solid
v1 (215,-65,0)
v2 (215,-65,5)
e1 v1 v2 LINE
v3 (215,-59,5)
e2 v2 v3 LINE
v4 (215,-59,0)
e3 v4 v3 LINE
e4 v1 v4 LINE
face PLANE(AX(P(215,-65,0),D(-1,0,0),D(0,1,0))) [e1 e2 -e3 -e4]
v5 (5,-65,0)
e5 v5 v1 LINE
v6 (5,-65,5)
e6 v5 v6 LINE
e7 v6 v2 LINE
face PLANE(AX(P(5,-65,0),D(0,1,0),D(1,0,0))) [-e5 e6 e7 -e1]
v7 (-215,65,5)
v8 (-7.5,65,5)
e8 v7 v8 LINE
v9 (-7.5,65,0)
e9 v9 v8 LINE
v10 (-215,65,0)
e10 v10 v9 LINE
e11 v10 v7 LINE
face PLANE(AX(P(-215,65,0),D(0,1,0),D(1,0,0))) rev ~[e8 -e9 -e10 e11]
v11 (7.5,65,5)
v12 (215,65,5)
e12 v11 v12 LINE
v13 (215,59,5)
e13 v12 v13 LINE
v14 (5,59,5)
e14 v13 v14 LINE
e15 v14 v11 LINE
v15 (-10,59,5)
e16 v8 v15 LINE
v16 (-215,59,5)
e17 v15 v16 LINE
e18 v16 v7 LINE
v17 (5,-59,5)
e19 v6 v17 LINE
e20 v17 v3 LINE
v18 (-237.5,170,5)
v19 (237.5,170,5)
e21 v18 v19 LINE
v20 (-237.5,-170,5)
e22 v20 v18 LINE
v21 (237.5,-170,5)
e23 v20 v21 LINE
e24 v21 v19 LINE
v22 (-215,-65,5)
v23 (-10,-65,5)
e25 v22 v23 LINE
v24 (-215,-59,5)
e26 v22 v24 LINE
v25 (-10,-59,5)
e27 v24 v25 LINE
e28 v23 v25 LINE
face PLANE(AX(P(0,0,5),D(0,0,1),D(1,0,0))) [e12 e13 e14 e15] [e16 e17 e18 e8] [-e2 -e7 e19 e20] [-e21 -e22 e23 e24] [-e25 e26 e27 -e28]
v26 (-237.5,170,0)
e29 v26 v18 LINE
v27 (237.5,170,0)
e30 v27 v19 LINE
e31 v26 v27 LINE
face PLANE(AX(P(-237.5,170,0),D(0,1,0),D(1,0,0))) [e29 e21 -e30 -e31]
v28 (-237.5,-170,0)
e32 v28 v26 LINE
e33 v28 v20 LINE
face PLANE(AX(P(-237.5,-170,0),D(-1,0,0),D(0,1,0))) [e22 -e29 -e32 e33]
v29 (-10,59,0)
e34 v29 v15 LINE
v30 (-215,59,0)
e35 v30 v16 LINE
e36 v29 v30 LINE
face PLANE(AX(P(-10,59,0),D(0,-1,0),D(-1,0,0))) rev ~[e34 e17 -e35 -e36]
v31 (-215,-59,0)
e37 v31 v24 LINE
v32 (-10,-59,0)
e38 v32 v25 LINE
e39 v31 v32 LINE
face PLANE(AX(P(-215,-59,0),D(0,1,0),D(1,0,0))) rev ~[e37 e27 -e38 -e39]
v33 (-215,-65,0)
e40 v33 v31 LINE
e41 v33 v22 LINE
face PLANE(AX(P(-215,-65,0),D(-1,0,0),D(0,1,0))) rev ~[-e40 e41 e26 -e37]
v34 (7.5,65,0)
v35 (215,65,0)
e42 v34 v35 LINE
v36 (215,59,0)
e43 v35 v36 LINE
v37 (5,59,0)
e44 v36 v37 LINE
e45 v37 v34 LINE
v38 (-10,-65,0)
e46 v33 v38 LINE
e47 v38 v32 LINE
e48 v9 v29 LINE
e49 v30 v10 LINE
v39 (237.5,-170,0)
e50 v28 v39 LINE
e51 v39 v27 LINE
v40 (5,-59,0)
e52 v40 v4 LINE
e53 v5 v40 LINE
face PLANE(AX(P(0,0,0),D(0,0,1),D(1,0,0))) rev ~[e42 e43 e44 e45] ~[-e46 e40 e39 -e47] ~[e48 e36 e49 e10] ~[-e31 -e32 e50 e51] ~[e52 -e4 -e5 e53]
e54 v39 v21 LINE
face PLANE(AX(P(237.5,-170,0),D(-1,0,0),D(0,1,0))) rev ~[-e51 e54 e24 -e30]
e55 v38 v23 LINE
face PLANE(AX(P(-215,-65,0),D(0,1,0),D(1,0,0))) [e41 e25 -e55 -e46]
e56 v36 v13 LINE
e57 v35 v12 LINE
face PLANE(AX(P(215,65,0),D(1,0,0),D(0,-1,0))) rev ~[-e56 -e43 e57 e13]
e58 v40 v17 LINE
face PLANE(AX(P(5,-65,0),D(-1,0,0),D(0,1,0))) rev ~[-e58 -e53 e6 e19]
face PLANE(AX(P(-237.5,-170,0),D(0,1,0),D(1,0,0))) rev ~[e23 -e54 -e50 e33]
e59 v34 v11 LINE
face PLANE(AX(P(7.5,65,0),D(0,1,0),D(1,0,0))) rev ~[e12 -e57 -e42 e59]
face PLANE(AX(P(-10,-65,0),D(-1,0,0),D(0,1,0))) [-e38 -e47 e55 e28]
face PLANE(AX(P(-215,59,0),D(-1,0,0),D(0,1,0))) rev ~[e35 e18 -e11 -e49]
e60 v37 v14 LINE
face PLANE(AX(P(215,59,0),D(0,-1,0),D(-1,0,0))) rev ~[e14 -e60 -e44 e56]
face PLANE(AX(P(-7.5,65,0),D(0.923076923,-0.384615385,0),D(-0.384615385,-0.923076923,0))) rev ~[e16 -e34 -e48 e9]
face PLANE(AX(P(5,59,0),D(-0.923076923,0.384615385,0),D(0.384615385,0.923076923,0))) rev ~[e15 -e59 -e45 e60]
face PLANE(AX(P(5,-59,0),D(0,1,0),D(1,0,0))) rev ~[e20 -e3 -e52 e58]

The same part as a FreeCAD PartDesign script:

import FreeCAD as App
import Part
import Sketcher
from FreeCAD import Vector
Q = App.Units.Quantity

doc = App.newDocument("Part")
body = doc.addObject("PartDesign::Body", "Body")

sketch1 = body.newObject("Sketcher::SketchObject", "Sketch")
sketch1.AttachmentSupport = (doc.getObject("XY_Plane"), [""])
sketch1.MapMode = "FlatFace"
sketch1.addGeometry(Part.LineSegment(Vector(-238, 170, 0), Vector(-238, -170, 0)), False)
sketch1.addGeometry(Part.LineSegment(Vector(-238, -170, 0), Vector(238, -170, 0)), False)
sketch1.addGeometry(Part.LineSegment(Vector(238, -170, 0), Vector(238, 170, 0)), False)
sketch1.addGeometry(Part.LineSegment(Vector(238, 170, 0), Vector(-238, 170, 0)), False)
sketch1.addGeometry(Part.LineSegment(Vector(-10, -65, 0), Vector(-215, -65, 0)), False)
sketch1.addGeometry(Part.LineSegment(Vector(-215, -65, 0), Vector(-215, -59, 0)), False)
sketch1.addGeometry(Part.LineSegment(Vector(-215, -59, 0), Vector(-10, -59, 0)), False)
sketch1.addGeometry(Part.LineSegment(Vector(-10, -59, 0), Vector(-10, -65, 0)), False)
sketch1.addGeometry(Part.LineSegment(Vector(215, -65, 0), Vector(5, -65, 0)), False)
sketch1.addGeometry(Part.LineSegment(Vector(5, -65, 0), Vector(5, -59, 0)), False)
sketch1.addGeometry(Part.LineSegment(Vector(5, -59, 0), Vector(215, -59, 0)), False)
sketch1.addGeometry(Part.LineSegment(Vector(215, -59, 0), Vector(215, -65, 0)), False)
sketch1.addGeometry(Part.LineSegment(Vector(-8, 65, 0), Vector(-10, 59, 0)), False)
sketch1.addGeometry(Part.LineSegment(Vector(-10, 59, 0), Vector(-215, 59, 0)), False)
sketch1.addGeometry(Part.LineSegment(Vector(-215, 59, 0), Vector(-215, 65, 0)), False)
sketch1.addGeometry(Part.LineSegment(Vector(-215, 65, 0), Vector(-8, 65, 0)), False)
sketch1.addGeometry(Part.LineSegment(Vector(8, 65, 0), Vector(215, 65, 0)), False)
sketch1.addGeometry(Part.LineSegment(Vector(215, 65, 0), Vector(215, 59, 0)), False)
sketch1.addGeometry(Part.LineSegment(Vector(215, 59, 0), Vector(5, 59, 0)), False)
sketch1.addGeometry(Part.LineSegment(Vector(5, 59, 0), Vector(8, 65, 0)), False)
sketch1.addConstraint(Sketcher.Constraint("Coincident", 0, 2, 1, 1))
sketch1.addConstraint(Sketcher.Constraint("Coincident", 1, 2, 2, 1))
sketch1.addConstraint(Sketcher.Constraint("Coincident", 2, 2, 3, 1))
sketch1.addConstraint(Sketcher.Constraint("Coincident", 3, 2, 0, 1))
sketch1.addConstraint(Sketcher.Constraint("Coincident", 4, 2, 5, 1))
sketch1.addConstraint(Sketcher.Constraint("Coincident", 5, 2, 6, 1))
sketch1.addConstraint(Sketcher.Constraint("Coincident", 6, 2, 7, 1))
sketch1.addConstraint(Sketcher.Constraint("Coincident", 7, 2, 4, 1))
sketch1.addConstraint(Sketcher.Constraint("Coincident", 8, 2, 9, 1))
sketch1.addConstraint(Sketcher.Constraint("Coincident", 9, 2, 10, 1))
sketch1.addConstraint(Sketcher.Constraint("Coincident", 10, 2, 11, 1))
sketch1.addConstraint(Sketcher.Constraint("Coincident", 11, 2, 8, 1))
sketch1.addConstraint(Sketcher.Constraint("Coincident", 12, 2, 13, 1))
sketch1.addConstraint(Sketcher.Constraint("Coincident", 13, 2, 14, 1))
sketch1.addConstraint(Sketcher.Constraint("Coincident", 14, 2, 15, 1))
sketch1.addConstraint(Sketcher.Constraint("Coincident", 15, 2, 12, 1))
sketch1.addConstraint(Sketcher.Constraint("Coincident", 16, 2, 17, 1))
sketch1.addConstraint(Sketcher.Constraint("Coincident", 17, 2, 18, 1))
sketch1.addConstraint(Sketcher.Constraint("Coincident", 18, 2, 19, 1))
sketch1.addConstraint(Sketcher.Constraint("Coincident", 19, 2, 16, 1))
sketch1.addConstraint(Sketcher.Constraint("Vertical", 0))
sketch1.addConstraint(Sketcher.Constraint("Horizontal", 1))
sketch1.addConstraint(Sketcher.Constraint("Vertical", 2))
sketch1.addConstraint(Sketcher.Constraint("Horizontal", 3))
sketch1.addConstraint(Sketcher.Constraint("Horizontal", 4))
sketch1.addConstraint(Sketcher.Constraint("Vertical", 5))
sketch1.addConstraint(Sketcher.Constraint("Horizontal", 6))
sketch1.addConstraint(Sketcher.Constraint("Vertical", 7))
sketch1.addConstraint(Sketcher.Constraint("Horizontal", 8))
sketch1.addConstraint(Sketcher.Constraint("Vertical", 9))
sketch1.addConstraint(Sketcher.Constraint("Horizontal", 10))
sketch1.addConstraint(Sketcher.Constraint("Vertical", 11))
sketch1.addConstraint(Sketcher.Constraint("Horizontal", 13))
sketch1.addConstraint(Sketcher.Constraint("Vertical", 14))
sketch1.addConstraint(Sketcher.Constraint("Horizontal", 15))
sketch1.addConstraint(Sketcher.Constraint("Horizontal", 16))
sketch1.addConstraint(Sketcher.Constraint("Vertical", 17))
sketch1.addConstraint(Sketcher.Constraint("Horizontal", 18))
sketch1.addConstraint(Sketcher.Constraint("Symmetric", 0, 2, 2, 2, -1, 1))
sketch1.addConstraint(Sketcher.Constraint("Symmetric", 10, 2, 13, 2, -1, 1))
sketch1.addConstraint(Sketcher.Constraint("Symmetric", 4, 2, 16, 2, -1, 1))
sketch1.addConstraint(Sketcher.Constraint("Symmetric", 5, 2, 10, 2, -2))
sketch1.addConstraint(Sketcher.Constraint("Symmetric", 15, 2, 19, 2, -2))
sketch1.addConstraint(Sketcher.Constraint("Symmetric", 9, 2, 18, 2, -1))
sketch1.addConstraint(Sketcher.Constraint("Parallel", 12, 19))
sketch1.addConstraint(Sketcher.Constraint("Horizontal", 7, 2, 8, 2))
sketch1.addConstraint(Sketcher.Constraint("Vertical", 7, 2, 12, 2))
sketch1.addConstraint(Sketcher.Constraint("DistanceX", 1, 1, 1, 2, Q("475 mm")))
sketch1.addConstraint(Sketcher.Constraint("DistanceX", 4, 2, 4, 1, Q("205 mm")))
sketch1.addConstraint(Sketcher.Constraint("DistanceX", 8, 2, 8, 1, Q("210 mm")))
sketch1.addConstraint(Sketcher.Constraint("DistanceY", 0, 2, 0, 1, Q("340 mm")))
sketch1.addConstraint(Sketcher.Constraint("DistanceY", 5, 1, 5, 2, Q("6 mm")))
sketch1.addConstraint(Sketcher.Constraint("DistanceX", 4, 2, -1, 1, Q("215 mm")))
sketch1.addConstraint(Sketcher.Constraint("DistanceY", 4, 2, -1, 1, Q("65 mm")))
pad1 = body.newObject("PartDesign::Pad", "Pad")
pad1.Profile = sketch1
pad1.Length = 5

doc.recompute()
